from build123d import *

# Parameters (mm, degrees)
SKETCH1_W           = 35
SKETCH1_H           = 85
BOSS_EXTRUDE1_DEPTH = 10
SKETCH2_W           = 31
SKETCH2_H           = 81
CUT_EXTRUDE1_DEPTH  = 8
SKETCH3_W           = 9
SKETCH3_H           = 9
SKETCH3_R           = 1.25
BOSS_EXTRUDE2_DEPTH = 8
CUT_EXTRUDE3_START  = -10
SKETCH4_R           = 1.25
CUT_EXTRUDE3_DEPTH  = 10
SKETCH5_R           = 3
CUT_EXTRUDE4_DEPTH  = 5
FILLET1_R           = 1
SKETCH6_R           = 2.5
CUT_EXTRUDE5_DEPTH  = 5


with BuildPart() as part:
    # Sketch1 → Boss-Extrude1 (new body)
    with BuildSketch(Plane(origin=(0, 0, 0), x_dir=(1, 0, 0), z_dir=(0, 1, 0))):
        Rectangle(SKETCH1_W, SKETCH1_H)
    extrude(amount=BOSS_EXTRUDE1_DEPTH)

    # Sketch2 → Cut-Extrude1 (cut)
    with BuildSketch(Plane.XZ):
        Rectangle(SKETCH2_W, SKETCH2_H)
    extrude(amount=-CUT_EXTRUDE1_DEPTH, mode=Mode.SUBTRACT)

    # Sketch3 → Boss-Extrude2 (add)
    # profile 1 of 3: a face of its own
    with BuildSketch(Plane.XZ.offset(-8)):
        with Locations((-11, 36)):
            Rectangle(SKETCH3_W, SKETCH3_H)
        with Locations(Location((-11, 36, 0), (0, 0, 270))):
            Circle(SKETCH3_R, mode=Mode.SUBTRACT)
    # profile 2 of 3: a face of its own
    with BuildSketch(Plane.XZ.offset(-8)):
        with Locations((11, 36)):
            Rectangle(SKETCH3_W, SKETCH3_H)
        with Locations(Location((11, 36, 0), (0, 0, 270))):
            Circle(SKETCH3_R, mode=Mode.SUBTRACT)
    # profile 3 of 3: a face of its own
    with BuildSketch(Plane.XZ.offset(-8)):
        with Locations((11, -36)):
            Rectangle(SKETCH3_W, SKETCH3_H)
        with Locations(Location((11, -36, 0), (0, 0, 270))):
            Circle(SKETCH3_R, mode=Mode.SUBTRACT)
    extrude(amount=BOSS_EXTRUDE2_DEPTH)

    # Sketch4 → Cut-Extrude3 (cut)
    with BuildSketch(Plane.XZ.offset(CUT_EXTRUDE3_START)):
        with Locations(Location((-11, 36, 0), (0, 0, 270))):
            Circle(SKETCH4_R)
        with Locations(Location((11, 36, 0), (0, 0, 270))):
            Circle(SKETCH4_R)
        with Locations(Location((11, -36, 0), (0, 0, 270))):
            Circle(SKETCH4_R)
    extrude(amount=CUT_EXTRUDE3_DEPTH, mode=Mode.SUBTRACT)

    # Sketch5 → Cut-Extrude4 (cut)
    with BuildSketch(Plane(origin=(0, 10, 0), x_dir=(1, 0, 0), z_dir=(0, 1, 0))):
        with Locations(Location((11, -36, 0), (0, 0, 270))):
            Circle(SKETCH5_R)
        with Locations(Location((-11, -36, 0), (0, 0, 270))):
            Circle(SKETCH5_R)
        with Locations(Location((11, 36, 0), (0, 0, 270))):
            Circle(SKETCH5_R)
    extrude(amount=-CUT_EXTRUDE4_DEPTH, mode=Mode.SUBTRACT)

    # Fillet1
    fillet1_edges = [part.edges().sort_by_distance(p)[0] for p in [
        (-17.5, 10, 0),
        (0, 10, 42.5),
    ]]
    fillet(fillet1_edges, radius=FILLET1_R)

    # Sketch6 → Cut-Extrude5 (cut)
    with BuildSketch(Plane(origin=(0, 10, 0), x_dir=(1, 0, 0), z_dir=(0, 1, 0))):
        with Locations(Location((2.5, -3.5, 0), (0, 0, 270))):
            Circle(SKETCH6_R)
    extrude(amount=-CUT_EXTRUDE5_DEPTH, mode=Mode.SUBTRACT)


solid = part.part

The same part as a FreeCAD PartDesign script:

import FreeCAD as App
import Part
import Sketcher


def edges_at(feature, points):
    """Names of the edges that pass closest to the given points."""
    edges = feature.Shape.Edges
    near = lambda p: min(range(len(edges)), key=lambda i: edges[i].distToShape(Part.Vertex(*p))[0])
    return sorted({f"Edge{near(p) + 1}" for p in points})


def add_polygon(sketch, points):
    """Adds a closed chain of lines whose ends are joined by coincident constraints."""
    first, n = sketch.GeometryCount, len(points)
    for a, b in zip(points, points[1:] + points[:1]):
        sketch.addGeometry(Part.LineSegment(App.Vector(*a, 0), App.Vector(*b, 0)), False)
    for i in range(n):
        sketch.addConstraint(Sketcher.Constraint("Coincident", first + i, 2, first + (i + 1) % n, 1))

doc = App.newDocument("Part")
body = doc.addObject("PartDesign::Body", "Body")

# Sketch on XZ plane
sketch1 = doc.addObject("Sketcher::SketchObject", "Sketch")
body.addObject(sketch1)
sketch1.AttachmentSupport = (doc.XZ_Plane, [""])
sketch1.MapMode = "FlatFace"
add_polygon(sketch1, [(-18, -42), (-18, 42), (18, 42), (18, -42)])  # lines 0-3
sketch1.addConstraint(Sketcher.Constraint("Vertical", 0))
sketch1.addConstraint(Sketcher.Constraint("Horizontal", 1))
sketch1.addConstraint(Sketcher.Constraint("Vertical", 2))
sketch1.addConstraint(Sketcher.Constraint("Horizontal", 3))
sketch1.addConstraint(Sketcher.Constraint("Symmetric", 0, 2, 2, 2, -1, 1))
sketch1.addConstraint(Sketcher.Constraint("DistanceX", 1, 1, 1, 2, 35.0))
sketch1.addConstraint(Sketcher.Constraint("DistanceY", 0, 1, 0, 2, 85.0))
pad1 = doc.addObject("PartDesign::Pad", "Pad")
body.addObject(pad1)
pad1.Profile = sketch1
pad1.Length = 10
pad1.Reversed = True

# Sketch on XZ plane
sketch2 = doc.addObject("Sketcher::SketchObject", "Sketch001")
body.addObject(sketch2)
sketch2.AttachmentSupport = (doc.XZ_Plane, [""])
sketch2.MapMode = "FlatFace"
add_polygon(sketch2, [(-16, 40), (-16, -40), (16, -40), (16, 40)])  # lines 0-3
sketch2.addConstraint(Sketcher.Constraint("Vertical", 0))
sketch2.addConstraint(Sketcher.Constraint("Horizontal", 1))
sketch2.addConstraint(Sketcher.Constraint("Vertical", 2))
sketch2.addConstraint(Sketcher.Constraint("Horizontal", 3))
sketch2.addConstraint(Sketcher.Constraint("Symmetric", 0, 2, 2, 2, -1, 1))
sketch2.addConstraint(Sketcher.Constraint("DistanceX", 1, 1, 1, 2, 31.0))
sketch2.addConstraint(Sketcher.Constraint("DistanceY", 0, 2, 0, 1, 81.0))
pocket1 = doc.addObject("PartDesign::Pocket", "Pocket")
body.addObject(pocket1)
pocket1.Profile = sketch2
pocket1.Length = 8

# Sketch on XZ plane
sketch3 = doc.addObject("Sketcher::SketchObject", "Sketch002")
body.addObject(sketch3)
sketch3.AttachmentSupport = (doc.XZ_Plane, [""])
sketch3.MapMode = "FlatFace"
sketch3.AttachmentOffset = App.Placement(App.Vector(0, 0, -8), App.Rotation())
add_polygon(sketch3, [(-15.5, 40.5), (-15.5, 31.5), (-6.5, 31.5), (-6.5, 40.5)])  # lines 0-3
sketch3.addGeometry(Part.Circle(App.Vector(-11, 36, 0), App.Vector(0, 0, 1), 1.2), False)  # 4
add_polygon(sketch3, [(6.5, 40.5), (6.5, 31.5), (15.5, 31.5), (15.5, 40.5)])  # lines 5-8
sketch3.addGeometry(Part.Circle(App.Vector(11, 36, 0), App.Vector(0, 0, 1), 1.2), False)  # 9
add_polygon(sketch3, [(6.5, -31.5), (6.5, -40.5), (15.5, -40.5), (15.5, -31.5)])  # lines 10-13
sketch3.addGeometry(Part.Circle(App.Vector(11, -36, 0), App.Vector(0, 0, 1), 1.2), False)  # 14
sketch3.addConstraint(Sketcher.Constraint("Vertical", 0))
sketch3.addConstraint(Sketcher.Constraint("Horizontal", 1))
sketch3.addConstraint(Sketcher.Constraint("Vertical", 2))
sketch3.addConstraint(Sketcher.Constraint("Horizontal", 3))
sketch3.addConstraint(Sketcher.Constraint("Vertical", 5))
sketch3.addConstraint(Sketcher.Constraint("Horizontal", 6))
sketch3.addConstraint(Sketcher.Constraint("Vertical", 7))
sketch3.addConstraint(Sketcher.Constraint("Horizontal", 8))
sketch3.addConstraint(Sketcher.Constraint("Vertical", 10))
sketch3.addConstraint(Sketcher.Constraint("Horizontal", 11))
sketch3.addConstraint(Sketcher.Constraint("Vertical", 12))
sketch3.addConstraint(Sketcher.Constraint("Horizontal", 13))
sketch3.addConstraint(Sketcher.Constraint("Equal", 4, 9))
sketch3.addConstraint(Sketcher.Constraint("Equal", 9, 14))
sketch3.addConstraint(Sketcher.Constraint("Symmetric", 4, 3, 14, 3, -1, 1))
sketch3.addConstraint(Sketcher.Constraint("Symmetric", 2, 2, 10, 2, -1, 1))
sketch3.addConstraint(Sketcher.Constraint("Symmetric", 0, 2, 12, 2, -1, 1))
sketch3.addConstraint(Sketcher.Constraint("Symmetric", 4, 3, 9, 3, -2))
sketch3.addConstraint(Sketcher.Constraint("Symmetric", 1, 2, 5, 2, -2))
sketch3.addConstraint(Sketcher.Constraint("Symmetric", 3, 2, 7, 2, -2))
sketch3.addConstraint(Sketcher.Constraint("Equal", 13, 0))
sketch3.addConstraint(Sketcher.Constraint("Diameter", 4, 2.5))
sketch3.addConstraint(Sketcher.Constraint("DistanceX", 1, 1, 1, 2, 9.0))
sketch3.addConstraint(Sketcher.Constraint("DistanceX", 4, 3, -1, 1, 11.0))
sketch3.addConstraint(Sketcher.Constraint("DistanceY", -1, 1, 4, 3, 36.0))
sketch3.addConstraint(Sketcher.Constraint("DistanceX", 1, 2, 5, 2, 13.0))
sketch3.addConstraint(Sketcher.Constraint("DistanceY", 10, 2, 5, 2, 72.0))
pad2 = doc.addObject("PartDesign::Pad", "Pad001")
body.addObject(pad2)
pad2.Profile = sketch3
pad2.Length = 8

# Sketch on XZ plane
sketch4 = doc.addObject("Sketcher::SketchObject", "Sketch003")
body.addObject(sketch4)
sketch4.AttachmentSupport = (doc.XZ_Plane, [""])
sketch4.MapMode = "FlatFace"
sketch4.AttachmentOffset = App.Placement(App.Vector(0, 0, -10), App.Rotation())
sketch4.addGeometry(Part.Circle(App.Vector(-11, 36, 0), App.Vector(0, 0, 1), 1.2), False)
sketch4.addGeometry(Part.Circle(App.Vector(11, 36, 0), App.Vector(0, 0, 1), 1.2), False)
sketch4.addGeometry(Part.Circle(App.Vector(11, -36, 0), App.Vector(0, 0, 1), 1.2), False)
sketch4.addConstraint(Sketcher.Constraint("Equal", 0, 1))
sketch4.addConstraint(Sketcher.Constraint("Equal", 1, 2))
sketch4.addConstraint(Sketcher.Constraint("Symmetric", 0, 3, 2, 3, -1, 1))
sketch4.addConstraint(Sketcher.Constraint("Symmetric", 0, 3, 1, 3, -2))
sketch4.addConstraint(Sketcher.Constraint("Diameter", 0, 2.5))
sketch4.addConstraint(Sketcher.Constraint("DistanceX", 0, 3, -1, 1, 11.0))
sketch4.addConstraint(Sketcher.Constraint("DistanceY", -1, 1, 0, 3, 36.0))
pocket2 = doc.addObject("PartDesign::Pocket", "Pocket001")
body.addObject(pocket2)
pocket2.Profile = sketch4
pocket2.Length = 10
pocket2.Reversed = True

# Sketch on XZ plane
sketch5 = doc.addObject("Sketcher::SketchObject", "Sketch004")
body.addObject(sketch5)
sketch5.AttachmentSupport = (doc.XZ_Plane, [""])
sketch5.MapMode = "FlatFace"
sketch5.AttachmentOffset = App.Placement(App.Vector(0, 0, -10), App.Rotation())
sketch5.addGeometry(Part.Circle(App.Vector(11, 36, 0), App.Vector(0, 0, 1), 3), False)
sketch5.addGeometry(Part.Circle(App.Vector(-11, 36, 0), App.Vector(0, 0, 1), 3), False)
sketch5.addGeometry(Part.Circle(App.Vector(11, -36, 0), App.Vector(0, 0, 1), 3), False)
sketch5.addConstraint(Sketcher.Constraint("Equal", 0, 1))
sketch5.addConstraint(Sketcher.Constraint("Equal", 1, 2))
sketch5.addConstraint(Sketcher.Constraint("Symmetric", 1, 3, 2, 3, -1, 1))
sketch5.addConstraint(Sketcher.Constraint("Symmetric", 0, 3, 1, 3, -2))
sketch5.addConstraint(Sketcher.Constraint("Diameter", 0, 6.0))
sketch5.addConstraint(Sketcher.Constraint("DistanceX", -1, 1, 0, 3, 11.0))
sketch5.addConstraint(Sketcher.Constraint("DistanceY", -1, 1, 0, 3, 36.0))
pocket3 = doc.addObject("PartDesign::Pocket", "Pocket002")
body.addObject(pocket3)
pocket3.Profile = sketch5
pocket3.Length = 5
pocket3.Reversed = True
doc.recompute()

fillet = doc.addObject("PartDesign::Fillet", "Fillet")
body.addObject(fillet)
fillet.Base = (pocket3, edges_at(pocket3, [(-17.5, 10, 0), (0, 10, 42.5)]))
fillet.Radius = 1

# Sketch on XZ plane
sketch6 = doc.addObject("Sketcher::SketchObject", "Sketch005")
body.addObject(sketch6)
sketch6.AttachmentSupport = (doc.XZ_Plane, [""])
sketch6.MapMode = "FlatFace"
sketch6.AttachmentOffset = App.Placement(App.Vector(0, 0, -10), App.Rotation())
sketch6.addGeometry(Part.Circle(App.Vector(2.5, 3.5, 0), App.Vector(0, 0, 1), 2.5), False)
sketch6.addConstraint(Sketcher.Constraint("Diameter", 0, 5.0))
sketch6.addConstraint(Sketcher.Constraint("DistanceX", -1, 1, 0, 3, 2.5))
sketch6.addConstraint(Sketcher.Constraint("DistanceY", -1, 1, 0, 3, 3.5))
pocket4 = doc.addObject("PartDesign::Pocket", "Pocket003")
body.addObject(pocket4)
pocket4.Profile = sketch6
pocket4.Length = 5
pocket4.Reversed = True

doc.recompute()
